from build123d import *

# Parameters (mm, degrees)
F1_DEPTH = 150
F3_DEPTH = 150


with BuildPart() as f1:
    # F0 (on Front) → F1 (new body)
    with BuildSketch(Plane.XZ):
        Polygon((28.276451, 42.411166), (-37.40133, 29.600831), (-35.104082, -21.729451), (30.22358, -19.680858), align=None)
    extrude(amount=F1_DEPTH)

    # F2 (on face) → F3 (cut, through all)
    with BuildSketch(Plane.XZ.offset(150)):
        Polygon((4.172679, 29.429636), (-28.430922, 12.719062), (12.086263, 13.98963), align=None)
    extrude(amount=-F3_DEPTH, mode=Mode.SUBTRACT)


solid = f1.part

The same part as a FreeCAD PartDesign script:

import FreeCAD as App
import Part
import Sketcher

V = App.Vector
Q = App.Units.Quantity

doc = App.newDocument("Part")
params = doc.addObject("Spreadsheet::Sheet", "Params")
for row, (alias, value) in enumerate([
    ("pad1_length", "150 mm"),
], start=1):
    params.set(f"A{row}", alias)
    params.set(f"B{row}", "=" + value)
    params.setAlias(f"B{row}", alias)

body = doc.addObject("PartDesign::Body", "Body")

# Sketch on XZ plane
sketch1 = body.newObject("Sketcher::SketchObject", "Sketch")
sketch1.AttachmentSupport = (doc.getObject("XZ_Plane"), [""])
sketch1.MapMode = "FlatFace"
sketch1.addGeometry([
    Part.LineSegment(V(28.276451, 42.411166, 0), V(-37.40133, 29.600831, 0)),
    Part.LineSegment(V(-37.40133, 29.600831, 0), V(-35.104082, -21.729451, 0)),
    Part.LineSegment(V(-35.104082, -21.729451, 0), V(30.22358, -19.680858, 0)),
    Part.LineSegment(V(30.22358, -19.680858, 0), V(28.276451, 42.411166, 0)),
], False)
sketch1.addConstraint([
    Sketcher.Constraint("Coincident", 0, 2, 1, 1),
    Sketcher.Constraint("Coincident", 1, 2, 2, 1),
    Sketcher.Constraint("Coincident", 2, 2, 3, 1),
    Sketcher.Constraint("Coincident", 3, 2, 0, 1),
    Sketcher.Constraint("Perpendicular", 2, 3),
    Sketcher.Constraint("DistanceX", 0, 2, -1, 1, Q("37.40133 mm")),
    Sketcher.Constraint("DistanceY", -1, 1, 0, 2, Q("29.600831 mm")),
    Sketcher.Constraint("DistanceX", 1, 2, -1, 1, Q("35.104082 mm")),
    Sketcher.Constraint("DistanceY", 1, 2, -1, 1, Q("21.729451 mm")),
    Sketcher.Constraint("DistanceX", -1, 1, 2, 2, Q("30.22358 mm")),
    Sketcher.Constraint("DistanceY", 2, 2, -1, 1, Q("19.680858 mm")),
    Sketcher.Constraint("DistanceX", -1, 1, 3, 2, Q("28.276451 mm")),
])
pad1 = body.newObject("PartDesign::Pad", "Pad")
pad1.Profile = sketch1
pad1.setExpression("Length", "Params.pad1_length")

# Sketch on XZ plane
sketch2 = body.newObject("Sketcher::SketchObject", "Sketch001")
sketch2.AttachmentSupport = (doc.getObject("XZ_Plane"), [""])
sketch2.MapMode = "FlatFace"
sketch2.AttachmentOffset = App.Placement(V(0, 0, 150), App.Rotation())
sketch2.addGeometry([
    Part.LineSegment(V(4, 29, 0), V(-28, 13, 0)),
    Part.LineSegment(V(-28, 13, 0), V(12, 14, 0)),
    Part.LineSegment(V(12, 14, 0), V(4, 29, 0)),
], False)
sketch2.addConstraint([
    Sketcher.Constraint("Coincident", 0, 2, 1, 1),
    Sketcher.Constraint("Coincident", 1, 2, 2, 1),
    Sketcher.Constraint("Coincident", 2, 2, 0, 1),
    Sketcher.Constraint("Perpendicular", 0, 2),
    Sketcher.Constraint("Distance", 1, Q("40.537102 mm")),
    Sketcher.Constraint("DistanceX", 0, 2, 2, 2, Q("32.603601 mm")),
    Sketcher.Constraint("DistanceX", 0, 2, -1, 1, Q("28.430922 mm")),
    Sketcher.Constraint("DistanceY", -1, 1, 0, 2, Q("12.719062 mm")),
    Sketcher.Constraint("DistanceY", -1, 1, 1, 2, Q("13.98963 mm")),
])
pocket1 = body.newObject("PartDesign::Pocket", "Pocket")
pocket1.Profile = sketch2
pocket1.Type = "ThroughAll"

doc.recompute()
